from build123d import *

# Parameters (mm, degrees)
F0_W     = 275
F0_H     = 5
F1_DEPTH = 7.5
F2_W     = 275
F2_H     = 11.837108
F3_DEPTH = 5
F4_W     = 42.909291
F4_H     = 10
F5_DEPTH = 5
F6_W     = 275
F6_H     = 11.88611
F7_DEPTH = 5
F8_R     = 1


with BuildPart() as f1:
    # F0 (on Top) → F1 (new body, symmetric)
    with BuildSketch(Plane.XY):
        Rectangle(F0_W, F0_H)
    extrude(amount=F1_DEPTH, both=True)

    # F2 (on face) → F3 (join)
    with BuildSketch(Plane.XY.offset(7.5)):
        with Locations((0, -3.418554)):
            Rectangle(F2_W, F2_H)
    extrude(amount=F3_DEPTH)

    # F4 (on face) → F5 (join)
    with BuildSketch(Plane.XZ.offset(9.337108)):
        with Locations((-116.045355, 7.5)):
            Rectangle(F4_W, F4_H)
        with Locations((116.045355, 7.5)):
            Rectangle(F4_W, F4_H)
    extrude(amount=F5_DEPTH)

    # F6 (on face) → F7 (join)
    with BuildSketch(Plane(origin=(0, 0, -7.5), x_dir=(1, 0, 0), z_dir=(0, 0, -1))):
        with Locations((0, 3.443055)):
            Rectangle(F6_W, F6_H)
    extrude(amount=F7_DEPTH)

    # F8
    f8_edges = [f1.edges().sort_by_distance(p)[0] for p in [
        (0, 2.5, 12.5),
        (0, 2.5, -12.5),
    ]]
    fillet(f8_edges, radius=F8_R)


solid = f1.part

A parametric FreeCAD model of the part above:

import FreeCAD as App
import Part
import Sketcher
from FreeCAD import Vector


def edges_at(feature, points):
    """Names of the edges that pass closest to the given points."""
    edges = feature.Shape.Edges
    near = lambda p: min(range(len(edges)), key=lambda i: edges[i].distToShape(Part.Vertex(*p))[0])
    return sorted({f"Edge{near(p) + 1}" for p in points})


def add_polygon(sketch, points):
    """Adds a closed chain of lines whose ends are joined by coincident constraints."""
    first, n = sketch.GeometryCount, len(points)
    for a, b in zip(points, points[1:] + points[:1]):
        sketch.addGeometry(Part.LineSegment(App.Vector(*a, 0), App.Vector(*b, 0)), False)
    for i in range(n):
        sketch.addConstraint(Sketcher.Constraint("Coincident", first + i, 2, first + (i + 1) % n, 1))

doc = App.newDocument("Part")
body = doc.addObject("PartDesign::Body", "Body")

# Sketch on XY plane
sketch1 = doc.addObject("Sketcher::SketchObject", "Sketch")
body.addObject(sketch1)
sketch1.AttachmentSupport = (doc.XY_Plane, [""])
sketch1.MapMode = "FlatFace"
add_polygon(sketch1, [(-138, 2), (-138, -2), (138, -2), (138, 2)])  # lines 0-3
sketch1.addConstraint(Sketcher.Constraint("Vertical", 0))
sketch1.addConstraint(Sketcher.Constraint("Horizontal", 1))
sketch1.addConstraint(Sketcher.Constraint("Vertical", 2))
sketch1.addConstraint(Sketcher.Constraint("Horizontal", 3))
sketch1.addConstraint(Sketcher.Constraint("Symmetric", 0, 2, 2, 2, -1, 1))
sketch1.addConstraint(Sketcher.Constraint("DistanceX", 1, 1, 1, 2, 275.0))
sketch1.addConstraint(Sketcher.Constraint("DistanceY", 0, 2, 0, 1, 5.0))
pad1 = doc.addObject("PartDesign::Pad", "Pad")
body.addObject(pad1)
pad1.Profile = sketch1
pad1.Length = 15
pad1.Midplane = True

# Sketch on XY plane
sketch2 = doc.addObject("Sketcher::SketchObject", "Sketch001")
body.addObject(sketch2)
sketch2.AttachmentSupport = (doc.XY_Plane, [""])
sketch2.MapMode = "FlatFace"
sketch2.AttachmentOffset = App.Placement(Vector(0, 0, 7.5), App.Rotation())
add_polygon(sketch2, [(-138, 2), (-138, -9), (138, -9), (138, 2)])  # lines 0-3
sketch2.addConstraint(Sketcher.Constraint("Vertical", 0))
sketch2.addConstraint(Sketcher.Constraint("Horizontal", 1))
sketch2.addConstraint(Sketcher.Constraint("Vertical", 2))
sketch2.addConstraint(Sketcher.Constraint("Horizontal", 3))
sketch2.addConstraint(Sketcher.Constraint("DistanceX", 1, 1, 1, 2, 275.0))
sketch2.addConstraint(Sketcher.Constraint("DistanceX", 0, 2, -1, 1, 137.5))
sketch2.addConstraint(Sketcher.Constraint("DistanceY", -1, 1, 2, 2, 2.5))
sketch2.addConstraint(Sketcher.Constraint("DistanceY", 0, 2, 0, 1, 11.837108))
pad2 = doc.addObject("PartDesign::Pad", "Pad001")
body.addObject(pad2)
pad2.Profile = sketch2
pad2.Length = 5

# Sketch on XZ plane
sketch3 = doc.addObject("Sketcher::SketchObject", "Sketch002")
body.addObject(sketch3)
sketch3.AttachmentSupport = (doc.XZ_Plane, [""])
sketch3.MapMode = "FlatFace"
sketch3.AttachmentOffset = App.Placement(Vector(0, 0, 9.337108), App.Rotation())
add_polygon(sketch3, [(-138, 12), (-138, 2), (-95, 2), (-95, 12)])  # lines 0-3
add_polygon(sketch3, [(95, 12), (95, 2), (138, 2), (138, 12)])  # lines 4-7
sketch3.addConstraint(Sketcher.Constraint("Vertical", 0))
sketch3.addConstraint(Sketcher.Constraint("Horizontal", 1))
sketch3.addConstraint(Sketcher.Constraint("Vertical", 2))
sketch3.addConstraint(Sketcher.Constraint("Horizontal", 3))
sketch3.addConstraint(Sketcher.Constraint("Vertical", 4))
sketch3.addConstraint(Sketcher.Constraint("Horizontal", 5))
sketch3.addConstraint(Sketcher.Constraint("Vertical", 6))
sketch3.addConstraint(Sketcher.Constraint("Horizontal", 7))
sketch3.addConstraint(Sketcher.Constraint("Symmetric", 1, 2, 4, 2, -2))
sketch3.addConstraint(Sketcher.Constraint("Symmetric", 3, 2, 6, 2, -2))
sketch3.addConstraint(Sketcher.Constraint("DistanceY", 0, 2, 0, 1, 10.0))
sketch3.addConstraint(Sketcher.Constraint("DistanceX", 0, 2, 5, 2, 275.000001))
sketch3.addConstraint(Sketcher.Constraint("DistanceY", -1, 1, 0, 2, 2.5))
sketch3.addConstraint(Sketcher.Constraint("DistanceX", 1, 1, 1, 2, 42.909291))
pad3 = doc.addObject("PartDesign::Pad", "Pad002")
body.addObject(pad3)
pad3.Profile = sketch3
pad3.Length = 5

# Sketch on XY plane
sketch4 = doc.addObject("Sketcher::SketchObject", "Sketch003")
body.addObject(sketch4)
sketch4.AttachmentSupport = (doc.XY_Plane, [""])
sketch4.MapMode = "FlatFace"
sketch4.AttachmentOffset = App.Placement(Vector(0, 0, -7.5), App.Rotation())
add_polygon(sketch4, [(-138, -9), (-138, 2), (138, 2), (138, -9)])  # lines 0-3
sketch4.addConstraint(Sketcher.Constraint("Vertical", 0))
sketch4.addConstraint(Sketcher.Constraint("Horizontal", 1))
sketch4.addConstraint(Sketcher.Constraint("Vertical", 2))
sketch4.addConstraint(Sketcher.Constraint("Horizontal", 3))
sketch4.addConstraint(Sketcher.Constraint("DistanceX", 1, 1, 1, 2, 275.0))
sketch4.addConstraint(Sketcher.Constraint("DistanceX", 0, 2, -1, 1, 137.5))
sketch4.addConstraint(Sketcher.Constraint("DistanceY", -1, 1, 0, 2, 2.5))
sketch4.addConstraint(Sketcher.Constraint("DistanceY", 0, 1, 0, 2, 11.88611))
pad4 = doc.addObject("PartDesign::Pad", "Pad003")
body.addObject(pad4)
pad4.Profile = sketch4
pad4.Length = 5
pad4.Reversed = True
doc.recompute()

fillet = doc.addObject("PartDesign::Fillet", "Fillet")
body.addObject(fillet)
fillet.Base = (pad4, edges_at(pad4, [(0, 2.5, 12.5), (0, 2.5, -12.5)]))
fillet.Radius = 1

doc.recompute()
